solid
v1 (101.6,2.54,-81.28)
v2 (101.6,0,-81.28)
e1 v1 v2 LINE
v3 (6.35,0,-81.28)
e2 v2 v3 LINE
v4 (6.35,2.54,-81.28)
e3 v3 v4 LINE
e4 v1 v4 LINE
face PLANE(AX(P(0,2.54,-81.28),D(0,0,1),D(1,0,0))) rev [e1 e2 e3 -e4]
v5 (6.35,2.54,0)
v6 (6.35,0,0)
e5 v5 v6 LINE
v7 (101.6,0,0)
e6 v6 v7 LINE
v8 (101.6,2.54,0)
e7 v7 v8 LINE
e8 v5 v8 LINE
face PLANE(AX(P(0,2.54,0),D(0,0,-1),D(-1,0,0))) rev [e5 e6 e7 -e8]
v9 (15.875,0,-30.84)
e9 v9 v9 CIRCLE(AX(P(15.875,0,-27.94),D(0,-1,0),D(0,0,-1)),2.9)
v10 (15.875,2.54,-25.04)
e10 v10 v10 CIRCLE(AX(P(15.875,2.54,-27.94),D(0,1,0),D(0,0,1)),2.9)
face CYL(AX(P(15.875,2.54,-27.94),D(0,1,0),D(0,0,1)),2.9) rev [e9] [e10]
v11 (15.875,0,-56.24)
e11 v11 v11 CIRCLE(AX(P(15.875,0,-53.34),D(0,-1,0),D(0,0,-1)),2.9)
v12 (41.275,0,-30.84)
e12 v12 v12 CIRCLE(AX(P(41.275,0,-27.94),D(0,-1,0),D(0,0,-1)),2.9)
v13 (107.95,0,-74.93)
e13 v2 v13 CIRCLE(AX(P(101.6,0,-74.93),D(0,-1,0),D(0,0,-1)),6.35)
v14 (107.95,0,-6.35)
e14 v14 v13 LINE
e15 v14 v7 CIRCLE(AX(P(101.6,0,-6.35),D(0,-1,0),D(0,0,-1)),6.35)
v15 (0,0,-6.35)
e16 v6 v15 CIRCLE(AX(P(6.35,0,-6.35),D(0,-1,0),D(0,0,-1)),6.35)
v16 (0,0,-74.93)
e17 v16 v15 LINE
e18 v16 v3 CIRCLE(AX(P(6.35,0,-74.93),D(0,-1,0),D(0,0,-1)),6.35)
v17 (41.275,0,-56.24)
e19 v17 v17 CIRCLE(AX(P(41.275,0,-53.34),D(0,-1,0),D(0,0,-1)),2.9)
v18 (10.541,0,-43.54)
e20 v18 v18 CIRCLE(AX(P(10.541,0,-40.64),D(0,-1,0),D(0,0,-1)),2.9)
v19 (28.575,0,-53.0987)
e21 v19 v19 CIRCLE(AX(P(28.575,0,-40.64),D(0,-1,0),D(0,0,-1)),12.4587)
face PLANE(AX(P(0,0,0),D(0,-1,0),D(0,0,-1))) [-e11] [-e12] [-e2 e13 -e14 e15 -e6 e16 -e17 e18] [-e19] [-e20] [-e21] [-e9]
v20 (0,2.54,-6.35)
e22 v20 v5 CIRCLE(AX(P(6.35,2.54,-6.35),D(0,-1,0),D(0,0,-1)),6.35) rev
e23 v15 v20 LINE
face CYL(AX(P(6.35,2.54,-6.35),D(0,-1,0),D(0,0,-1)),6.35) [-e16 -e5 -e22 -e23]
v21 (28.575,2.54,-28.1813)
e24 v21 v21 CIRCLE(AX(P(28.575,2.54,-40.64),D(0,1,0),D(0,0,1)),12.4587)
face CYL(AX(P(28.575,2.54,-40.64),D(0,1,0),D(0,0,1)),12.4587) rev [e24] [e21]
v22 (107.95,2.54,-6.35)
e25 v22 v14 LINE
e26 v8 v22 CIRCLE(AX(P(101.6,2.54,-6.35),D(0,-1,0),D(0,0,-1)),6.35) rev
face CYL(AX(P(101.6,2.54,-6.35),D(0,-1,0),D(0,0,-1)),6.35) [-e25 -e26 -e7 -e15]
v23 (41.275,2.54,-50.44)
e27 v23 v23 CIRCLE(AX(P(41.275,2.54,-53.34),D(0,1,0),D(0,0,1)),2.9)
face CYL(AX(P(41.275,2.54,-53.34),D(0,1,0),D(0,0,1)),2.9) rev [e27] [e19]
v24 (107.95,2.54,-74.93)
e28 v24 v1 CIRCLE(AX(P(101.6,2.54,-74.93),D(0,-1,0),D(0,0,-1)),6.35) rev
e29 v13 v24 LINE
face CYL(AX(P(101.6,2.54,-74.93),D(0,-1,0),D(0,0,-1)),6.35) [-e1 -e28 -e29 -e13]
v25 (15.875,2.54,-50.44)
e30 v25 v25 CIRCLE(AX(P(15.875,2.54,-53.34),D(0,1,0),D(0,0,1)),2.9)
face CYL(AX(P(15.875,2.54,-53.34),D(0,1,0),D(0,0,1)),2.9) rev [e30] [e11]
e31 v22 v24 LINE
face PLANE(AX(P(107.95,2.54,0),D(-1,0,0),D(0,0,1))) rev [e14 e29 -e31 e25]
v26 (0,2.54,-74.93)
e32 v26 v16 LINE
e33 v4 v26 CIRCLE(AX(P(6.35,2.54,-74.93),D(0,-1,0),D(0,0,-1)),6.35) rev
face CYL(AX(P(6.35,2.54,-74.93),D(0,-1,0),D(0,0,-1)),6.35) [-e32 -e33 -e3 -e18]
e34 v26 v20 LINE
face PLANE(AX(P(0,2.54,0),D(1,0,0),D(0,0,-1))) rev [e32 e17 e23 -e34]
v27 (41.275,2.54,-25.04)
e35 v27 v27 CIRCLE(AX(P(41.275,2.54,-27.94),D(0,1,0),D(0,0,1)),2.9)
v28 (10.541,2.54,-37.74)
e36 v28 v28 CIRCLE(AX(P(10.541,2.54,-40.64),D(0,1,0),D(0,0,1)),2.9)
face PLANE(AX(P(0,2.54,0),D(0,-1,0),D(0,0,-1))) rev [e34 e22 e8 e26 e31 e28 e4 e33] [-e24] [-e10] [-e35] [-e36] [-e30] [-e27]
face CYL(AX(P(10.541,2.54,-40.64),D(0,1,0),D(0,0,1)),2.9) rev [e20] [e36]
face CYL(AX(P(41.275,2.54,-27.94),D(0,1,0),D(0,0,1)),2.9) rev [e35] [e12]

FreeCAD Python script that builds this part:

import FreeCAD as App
import Part
import Sketcher
from FreeCAD import Vector
Q = App.Units.Quantity


def edges_at(feature, points):
    """Names of the edges that pass closest to the given points."""
    edges = feature.Shape.Edges
    near = lambda p: min(range(len(edges)), key=lambda i: edges[i].distToShape(Part.Vertex(*p))[0])
    return sorted({f"Edge{near(p) + 1}" for p in points})


def add_polygon(sketch, points):
    """Adds a closed chain of lines whose ends are joined by coincident constraints."""
    first, n = sketch.GeometryCount, len(points)
    for a, b in zip(points, points[1:] + points[:1]):
        sketch.addGeometry(Part.LineSegment(App.Vector(*a, 0), App.Vector(*b, 0)), False)
    for i in range(n):
        sketch.addConstraint(Sketcher.Constraint("Coincident", first + i, 2, first + (i + 1) % n, 1))

doc = App.newDocument("Part")
body = doc.addObject("PartDesign::Body", "Body")

# Sketch on XZ plane
sketch1 = body.newObject("Sketcher::SketchObject", "Sketch")
sketch1.AttachmentSupport = (doc.getObject("XZ_Plane"), [""])
sketch1.MapMode = "FlatFace"
add_polygon(sketch1, [(0, -81.28), (0, 0), (107.95, 0), (107.95, -81.28)])  # lines 0-3
sketch1.addConstraint(Sketcher.Constraint("Vertical", 0))
sketch1.addConstraint(Sketcher.Constraint("Horizontal", 1))
sketch1.addConstraint(Sketcher.Constraint("Vertical", 2))
sketch1.addConstraint(Sketcher.Constraint("Horizontal", 3))
sketch1.addConstraint(Sketcher.Constraint("Coincident", 0, 2, -1, 1))
sketch1.addConstraint(Sketcher.Constraint("DistanceY", 0, 1, 0, 2, Q("3.2 in")))
sketch1.addConstraint(Sketcher.Constraint("DistanceX", 1, 1, 1, 2, Q("4.25 in")))
pad1 = body.newObject("PartDesign::Pad", "Pad")
pad1.Profile = sketch1
pad1.Length = Q("0.1 in")
pad1.Reversed = True

# Sketch on XZ plane
sketch2 = body.newObject("Sketcher::SketchObject", "Sketch001")
sketch2.AttachmentSupport = (doc.getObject("XZ_Plane"), [""])
sketch2.MapMode = "FlatFace"
sketch2.AttachmentOffset = App.Placement(Vector(0, 0, -0.1 * 25.4), App.Rotation())
sketch2.addGeometry(Part.Circle(Vector(15.875, -53.34, 0), Vector(0, 0, 1), 2.9), False)
sketch2.addGeometry(Part.Circle(Vector(41.275, -53.34, 0), Vector(0, 0, 1), 2.9), False)
sketch2.addGeometry(Part.Circle(Vector(41.275, -27.94, 0), Vector(0, 0, 1), 2.9), False)
sketch2.addGeometry(Part.Circle(Vector(15.875, -27.94, 0), Vector(0, 0, 1), 2.9), False)
sketch2.addGeometry(Part.Circle(Vector(10.541, -40.64, 0), Vector(0, 0, 1), 2.9), False)
sketch2.addConstraint(Sketcher.Constraint("Equal", 0, 1))
sketch2.addConstraint(Sketcher.Constraint("Equal", 1, 2))
sketch2.addConstraint(Sketcher.Constraint("Equal", 2, 3))
sketch2.addConstraint(Sketcher.Constraint("Equal", 3, 4))
sketch2.addConstraint(Sketcher.Constraint("Horizontal", 0, 3, 1, 3))
sketch2.addConstraint(Sketcher.Constraint("Horizontal", 2, 3, 3, 3))
sketch2.addConstraint(Sketcher.Constraint("Vertical", 1, 3, 2, 3))
sketch2.addConstraint(Sketcher.Constraint("Vertical", 0, 3, 3, 3))
sketch2.addConstraint(Sketcher.Constraint("DistanceX", 0, 3, 1, 3, Q("1 in")))
sketch2.addConstraint(Sketcher.Constraint("DistanceY", 1, 3, 2, 3, Q("1 in")))
sketch2.addConstraint(Sketcher.Constraint("DistanceY", 0, 3, -1, 1, Q("2.1 in")))
sketch2.addConstraint(Sketcher.Constraint("DistanceY", 4, 3, -1, 1, Q("1.6 in")))
sketch2.addConstraint(Sketcher.Constraint("Diameter", 0, Q("5.8 mm")))
sketch2.addConstraint(Sketcher.Constraint("DistanceX", 4, 3, 3, 3, Q("0.21 in")))
sketch2.addConstraint(Sketcher.Constraint("DistanceX", -1, 1, 0, 3, Q("0.625 in")))
doc.recompute()
hole = body.newObject("PartDesign::Hole", "Hole")
hole.Profile = sketch2
hole.ThreadType = "None"
hole.Diameter = 5.8
hole.DepthType = "ThroughAll"
hole.Reversed = True

# Sketch on XZ plane
sketch3 = body.newObject("Sketcher::SketchObject", "Sketch002")
sketch3.AttachmentSupport = (doc.getObject("XZ_Plane"), [""])
sketch3.MapMode = "FlatFace"
sketch3.AttachmentOffset = App.Placement(Vector(0, 0, -0.1 * 25.4), App.Rotation())
sketch3.addGeometry(Part.Circle(Vector(28.575, -40.64, 0), Vector(0, 0, 1), 12.4587), False)
sketch3.addConstraint(Sketcher.Constraint("Diameter", 0, Q("0.981 in")))
sketch3.addConstraint(Sketcher.Constraint("DistanceY", 0, 3, -1, 1, Q("1.6 in")))
sketch3.addConstraint(Sketcher.Constraint("DistanceX", -1, 1, 0, 3, Q("1.125 in")))
doc.recompute()
hole2 = body.newObject("PartDesign::Hole", "Hole001")
hole2.Profile = sketch3
hole2.ThreadType = "None"
hole2.Diameter = Q("0.981 in")
hole2.DepthType = "ThroughAll"
hole2.Reversed = True
doc.recompute()

fillet = body.newObject("PartDesign::Fillet", "Fillet")
fillet.Base = (hole2, edges_at(hole2, [
    (0, 1.27, -81.28),
    (107.95, 1.27, -81.28),
    (107.95, 1.27, 0),
    (0, 1.27, 0),
]))
fillet.Radius = Q("0.25 in")

doc.recompute()
